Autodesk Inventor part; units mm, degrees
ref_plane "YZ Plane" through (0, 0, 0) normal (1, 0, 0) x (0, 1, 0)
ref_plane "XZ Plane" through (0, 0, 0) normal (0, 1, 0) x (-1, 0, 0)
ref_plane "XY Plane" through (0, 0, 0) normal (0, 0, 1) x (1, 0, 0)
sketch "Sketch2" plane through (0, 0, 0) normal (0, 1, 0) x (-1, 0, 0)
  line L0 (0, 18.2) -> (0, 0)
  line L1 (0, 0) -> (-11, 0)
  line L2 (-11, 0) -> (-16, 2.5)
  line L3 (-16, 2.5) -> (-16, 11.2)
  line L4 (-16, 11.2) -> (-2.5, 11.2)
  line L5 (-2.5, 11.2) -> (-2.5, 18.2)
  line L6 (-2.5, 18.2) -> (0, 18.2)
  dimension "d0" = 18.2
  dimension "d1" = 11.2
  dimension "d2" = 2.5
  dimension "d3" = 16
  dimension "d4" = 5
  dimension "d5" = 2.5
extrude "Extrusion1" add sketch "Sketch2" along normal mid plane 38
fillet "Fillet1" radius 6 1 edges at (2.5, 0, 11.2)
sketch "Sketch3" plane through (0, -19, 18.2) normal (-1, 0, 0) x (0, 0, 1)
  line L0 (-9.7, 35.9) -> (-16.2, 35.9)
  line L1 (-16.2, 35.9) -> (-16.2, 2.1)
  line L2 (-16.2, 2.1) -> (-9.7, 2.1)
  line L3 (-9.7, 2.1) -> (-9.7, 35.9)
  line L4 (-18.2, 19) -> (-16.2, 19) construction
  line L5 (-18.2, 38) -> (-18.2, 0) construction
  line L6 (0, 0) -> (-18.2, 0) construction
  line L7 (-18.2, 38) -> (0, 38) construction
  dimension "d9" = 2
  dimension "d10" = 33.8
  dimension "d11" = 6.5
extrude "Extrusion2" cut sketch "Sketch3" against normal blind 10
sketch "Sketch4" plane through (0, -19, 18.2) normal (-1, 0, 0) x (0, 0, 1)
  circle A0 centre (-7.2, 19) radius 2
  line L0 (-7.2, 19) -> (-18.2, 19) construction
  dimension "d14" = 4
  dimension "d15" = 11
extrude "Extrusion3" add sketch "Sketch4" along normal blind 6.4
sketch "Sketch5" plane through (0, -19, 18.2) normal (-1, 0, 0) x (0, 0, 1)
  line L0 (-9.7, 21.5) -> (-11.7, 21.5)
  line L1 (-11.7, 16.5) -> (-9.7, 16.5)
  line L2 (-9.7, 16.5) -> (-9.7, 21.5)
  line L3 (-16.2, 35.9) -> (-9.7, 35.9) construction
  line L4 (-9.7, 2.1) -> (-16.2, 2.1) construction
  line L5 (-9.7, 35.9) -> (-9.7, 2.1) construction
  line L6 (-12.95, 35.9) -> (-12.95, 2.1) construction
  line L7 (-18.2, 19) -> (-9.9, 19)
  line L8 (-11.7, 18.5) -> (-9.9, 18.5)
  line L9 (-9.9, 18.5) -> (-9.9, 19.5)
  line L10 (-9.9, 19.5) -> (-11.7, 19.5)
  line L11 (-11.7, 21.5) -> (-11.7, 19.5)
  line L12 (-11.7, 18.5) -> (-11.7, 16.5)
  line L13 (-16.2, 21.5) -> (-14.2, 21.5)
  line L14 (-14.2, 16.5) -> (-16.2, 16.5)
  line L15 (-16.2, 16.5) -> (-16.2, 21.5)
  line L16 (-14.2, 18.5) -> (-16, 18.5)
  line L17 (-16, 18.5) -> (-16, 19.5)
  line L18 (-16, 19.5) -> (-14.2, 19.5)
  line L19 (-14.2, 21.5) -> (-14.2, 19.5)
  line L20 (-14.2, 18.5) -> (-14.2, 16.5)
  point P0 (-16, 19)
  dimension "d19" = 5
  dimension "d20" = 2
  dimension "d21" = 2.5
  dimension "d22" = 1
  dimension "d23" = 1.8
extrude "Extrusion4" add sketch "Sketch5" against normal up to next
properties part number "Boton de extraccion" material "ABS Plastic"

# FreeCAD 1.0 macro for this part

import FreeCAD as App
import Part
import Sketcher

V = App.Vector
Q = App.Units.Quantity


def edges_at(feature, points):
    """Names of the edges that pass closest to the given points."""
    edges = feature.Shape.Edges
    near = lambda p: min(range(len(edges)), key=lambda i: edges[i].distToShape(Part.Vertex(*p))[0])
    return sorted({f"Edge{near(p) + 1}" for p in points})


def add_polygon(sketch, points):
    """Adds a closed chain of lines whose ends are joined by coincident constraints."""
    first, n = sketch.GeometryCount, len(points)
    for a, b in zip(points, points[1:] + points[:1]):
        sketch.addGeometry(Part.LineSegment(App.Vector(*a, 0), App.Vector(*b, 0)), False)
    for i in range(n):
        sketch.addConstraint(Sketcher.Constraint("Coincident", first + i, 2, first + (i + 1) % n, 1))

doc = App.newDocument("Part")
params = doc.addObject("Spreadsheet::Sheet", "Params")
for row, (alias, value) in enumerate([
    ("sketch1_width", "2.5 mm"),
    ("sketch1_height", "18.2 mm"),
    ("pad1_length", "38 mm"),
    ("fillet_radius", "6 mm"),
    ("sketch2_width", "33.8 mm"),
    ("sketch2_height", "6.5 mm"),
    ("pocket1_length", "10 mm"),
    ("sketch3_diameter", "4 mm"),
    ("pad2_length", "6.4 mm"),
    ("sketch4_width", "5 mm"),
    ("sketch4_width2", "2 mm"),
    ("sketch4_height", "1.8 mm"),
], start=1):
    params.set(f"A{row}", alias)
    params.set(f"B{row}", "=" + value)
    params.setAlias(f"B{row}", alias)

body = doc.addObject("PartDesign::Body", "Body")

# Sketch on XZ plane
sketch1 = body.newObject("Sketcher::SketchObject", "Sketch")
sketch1.AttachmentSupport = (doc.getObject("XZ_Plane"), [""])
sketch1.MapMode = "FlatFace"
add_polygon(sketch1, [(0, 0), (0, 18.2), (2.5, 18.2), (2.5, 11.2), (16, 11.2), (16, 2.5), (11, 0)])  # lines 0-6
sketch1.addConstraint([
    Sketcher.Constraint("Vertical", 0),
    Sketcher.Constraint("Horizontal", 1),
    Sketcher.Constraint("Vertical", 2),
    Sketcher.Constraint("Horizontal", 3),
    Sketcher.Constraint("Vertical", 4),
    Sketcher.Constraint("Horizontal", 6),
    Sketcher.Constraint("Coincident", 6, 2, -1, 1),
    Sketcher.Constraint("DistanceX", 1, 1, 1, 2, Q("2.5 mm")),
    Sketcher.Constraint("DistanceY", 0, 1, 0, 2, Q("18.2 mm")),
    Sketcher.Constraint("DistanceX", -1, 1, 3, 2, Q("16 mm")),
    Sketcher.Constraint("DistanceX", 5, 2, 4, 2, Q("5 mm")),
    Sketcher.Constraint("DistanceY", -1, 1, 2, 2, Q("11.2 mm")),
    Sketcher.Constraint("DistanceY", -1, 1, 4, 2, Q("2.5 mm")),
])
sketch1.setExpression("Constraints[14]", "Params.sketch1_width")
sketch1.setExpression("Constraints[15]", "Params.sketch1_height")
pad1 = body.newObject("PartDesign::Pad", "Pad")
pad1.Profile = sketch1
pad1.setExpression("Length", "Params.pad1_length")
pad1.Midplane = True
doc.recompute()

fillet = body.newObject("PartDesign::Fillet", "Fillet")
fillet.Base = (pad1, edges_at(pad1, [(2.5, 0, 11.2)]))
fillet.setExpression("Radius", "Params.fillet_radius")

# Sketch on YZ plane
sketch2 = body.newObject("Sketcher::SketchObject", "Sketch001")
sketch2.AttachmentSupport = (doc.getObject("YZ_Plane"), [""])
sketch2.MapMode = "FlatFace"
add_polygon(sketch2, [(-16.9, 8.5), (16.9, 8.5), (16.9, 2), (-16.9, 2)])  # lines 0-3
sketch2.addConstraint([
    Sketcher.Constraint("Horizontal", 0),
    Sketcher.Constraint("Vertical", 1),
    Sketcher.Constraint("Horizontal", 2),
    Sketcher.Constraint("Vertical", 3),
    Sketcher.Constraint("DistanceX", 0, 1, 0, 2, Q("33.8 mm")),
    Sketcher.Constraint("DistanceY", 1, 2, 1, 1, Q("6.5 mm")),
    Sketcher.Constraint("DistanceY", -1, 1, 1, 2, Q("2 mm")),
    Sketcher.Constraint("DistanceX", -1, 1, 0, 2, Q("16.9 mm")),
])
sketch2.setExpression("Constraints[8]", "Params.sketch2_width")
sketch2.setExpression("Constraints[9]", "Params.sketch2_height")
pocket1 = body.newObject("PartDesign::Pocket", "Pocket")
pocket1.Profile = sketch2
pocket1.setExpression("Length", "Params.pocket1_length")
pocket1.Reversed = True

# Sketch on YZ plane
sketch3 = body.newObject("Sketcher::SketchObject", "Sketch002")
sketch3.AttachmentSupport = (doc.getObject("YZ_Plane"), [""])
sketch3.MapMode = "FlatFace"
sketch3.addGeometry(Part.Circle(V(0, 11, 0), V(0, 0, 1), 2), False)
sketch3.addConstraint([
    Sketcher.Constraint("PointOnObject", 0, 3, -2),
    Sketcher.Constraint("Diameter", 0, Q("4 mm")),
    Sketcher.Constraint("DistanceY", -1, 1, 0, 3, Q("11 mm")),
])
sketch3.setExpression("Constraints[1]", "Params.sketch3_diameter")
pad2 = body.newObject("PartDesign::Pad", "Pad001")
pad2.Profile = sketch3
pad2.setExpression("Length", "Params.pad2_length")
pad2.Reversed = True

# Sketch on YZ plane
sketch4 = body.newObject("Sketcher::SketchObject", "Sketch003")
sketch4.AttachmentSupport = (doc.getObject("YZ_Plane"), [""])
sketch4.MapMode = "FlatFace"
add_polygon(sketch4, [(-2.5, 8.5), (2.5, 8.5), (2.5, 6.5), (0.5, 6.5), (0.5, 8.3), (-0.5, 8.3), (-0.5, 6.5), (-2.5, 6.5)])  # lines 0-7
add_polygon(sketch4, [(-0.5, 2.2), (0.5, 2.2), (0.5, 4), (2.5, 4), (2.5, 2), (-2.5, 2), (-2.5, 4), (-0.5, 4)])  # lines 8-15
sketch4.addConstraint([
    Sketcher.Constraint("Horizontal", 0),
    Sketcher.Constraint("Vertical", 1),
    Sketcher.Constraint("Horizontal", 2),
    Sketcher.Constraint("Vertical", 3),
    Sketcher.Constraint("Horizontal", 4),
    Sketcher.Constraint("Vertical", 5),
    Sketcher.Constraint("Horizontal", 6),
    Sketcher.Constraint("Vertical", 7),
    Sketcher.Constraint("Horizontal", 8),
    Sketcher.Constraint("Vertical", 9),
    Sketcher.Constraint("Horizontal", 10),
    Sketcher.Constraint("Vertical", 11),
    Sketcher.Constraint("Horizontal", 12),
    Sketcher.Constraint("Vertical", 13),
    Sketcher.Constraint("Horizontal", 14),
    Sketcher.Constraint("Vertical", 15),
    Sketcher.Constraint("Symmetric", 2, 2, 5, 2, -2),
    Sketcher.Constraint("Symmetric", 10, 2, 13, 2, -2),
    Sketcher.Constraint("Vertical", 3, 2, 8, 2),
    Sketcher.Constraint("Vertical", 1, 2, 10, 2),
    Sketcher.Constraint("Vertical", 7, 2, 12, 2),
    Sketcher.Constraint("Vertical", 5, 2, 14, 2),
    Sketcher.Constraint("Equal", 14, 1),
    Sketcher.Constraint("Equal", 5, 9),
    Sketcher.Constraint("Equal", 7, 11),
    Sketcher.Constraint("DistanceX", 0, 1, 0, 2, Q("5 mm")),
    Sketcher.Constraint("DistanceX", 2, 2, 2, 1, Q("2 mm")),
    Sketcher.Constraint("DistanceY", 3, 1, 3, 2, Q("1.8 mm")),
    Sketcher.Constraint("DistanceY", -1, 1, 11, 2, Q("2 mm")),
    Sketcher.Constraint("DistanceY", 9, 2, 2, 2, Q("2.5 mm")),
])
sketch4.setExpression("Constraints[41]", "Params.sketch4_width")
sketch4.setExpression("Constraints[42]", "Params.sketch4_width2")
sketch4.setExpression("Constraints[43]", "Params.sketch4_height")
pad3 = body.newObject("PartDesign::Pad", "Pad002")
pad3.Profile = sketch4
pad3.Type = "UpToFirst"

doc.recompute()
